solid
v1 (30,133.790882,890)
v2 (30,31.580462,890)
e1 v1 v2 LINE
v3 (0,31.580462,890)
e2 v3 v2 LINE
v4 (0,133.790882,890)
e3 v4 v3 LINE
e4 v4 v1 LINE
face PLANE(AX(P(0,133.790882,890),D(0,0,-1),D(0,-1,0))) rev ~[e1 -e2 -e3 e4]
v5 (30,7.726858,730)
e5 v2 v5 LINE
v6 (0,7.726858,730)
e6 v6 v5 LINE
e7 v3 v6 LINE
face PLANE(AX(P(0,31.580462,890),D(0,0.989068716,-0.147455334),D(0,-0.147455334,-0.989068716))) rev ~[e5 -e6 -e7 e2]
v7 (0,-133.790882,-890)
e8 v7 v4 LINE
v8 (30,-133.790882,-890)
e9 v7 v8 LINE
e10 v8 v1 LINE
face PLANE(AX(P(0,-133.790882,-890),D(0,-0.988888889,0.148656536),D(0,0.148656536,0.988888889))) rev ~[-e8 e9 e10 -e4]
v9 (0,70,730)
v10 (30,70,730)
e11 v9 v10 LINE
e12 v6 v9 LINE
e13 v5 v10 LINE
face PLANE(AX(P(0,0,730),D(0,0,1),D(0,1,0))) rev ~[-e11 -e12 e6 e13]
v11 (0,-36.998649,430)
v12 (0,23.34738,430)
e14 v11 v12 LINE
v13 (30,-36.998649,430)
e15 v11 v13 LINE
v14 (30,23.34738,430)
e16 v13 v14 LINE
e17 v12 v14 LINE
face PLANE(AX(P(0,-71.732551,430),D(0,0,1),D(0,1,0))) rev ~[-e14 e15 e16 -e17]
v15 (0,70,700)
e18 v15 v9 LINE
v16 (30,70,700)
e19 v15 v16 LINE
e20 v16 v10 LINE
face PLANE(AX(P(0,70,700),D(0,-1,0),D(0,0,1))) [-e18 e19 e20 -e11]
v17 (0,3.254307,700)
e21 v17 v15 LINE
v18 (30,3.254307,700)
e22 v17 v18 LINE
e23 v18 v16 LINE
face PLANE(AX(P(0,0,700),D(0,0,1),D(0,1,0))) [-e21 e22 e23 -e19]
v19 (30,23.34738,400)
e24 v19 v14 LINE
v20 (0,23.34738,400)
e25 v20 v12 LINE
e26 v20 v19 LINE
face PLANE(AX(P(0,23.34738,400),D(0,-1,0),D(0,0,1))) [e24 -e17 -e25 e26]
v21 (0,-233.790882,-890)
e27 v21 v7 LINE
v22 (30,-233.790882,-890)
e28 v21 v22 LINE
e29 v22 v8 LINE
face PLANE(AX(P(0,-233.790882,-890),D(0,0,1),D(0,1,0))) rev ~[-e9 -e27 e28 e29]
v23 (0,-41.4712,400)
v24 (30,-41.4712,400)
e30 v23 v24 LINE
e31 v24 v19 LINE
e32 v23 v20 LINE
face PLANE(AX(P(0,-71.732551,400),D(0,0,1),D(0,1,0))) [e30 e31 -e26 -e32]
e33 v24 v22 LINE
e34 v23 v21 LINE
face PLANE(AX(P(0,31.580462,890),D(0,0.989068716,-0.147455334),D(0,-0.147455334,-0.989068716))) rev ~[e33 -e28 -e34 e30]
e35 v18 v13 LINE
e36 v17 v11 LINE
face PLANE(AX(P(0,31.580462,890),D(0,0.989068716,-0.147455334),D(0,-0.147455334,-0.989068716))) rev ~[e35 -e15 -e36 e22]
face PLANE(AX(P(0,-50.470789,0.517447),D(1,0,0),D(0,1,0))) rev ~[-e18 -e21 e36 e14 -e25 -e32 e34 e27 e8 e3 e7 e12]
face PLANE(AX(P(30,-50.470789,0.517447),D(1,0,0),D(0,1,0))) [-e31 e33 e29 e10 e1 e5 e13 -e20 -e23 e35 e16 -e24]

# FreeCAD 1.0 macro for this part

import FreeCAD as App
import Part
import Sketcher

V = App.Vector
Q = App.Units.Quantity


def add_polygon(sketch, points):
    """Adds a closed chain of lines whose ends are joined by coincident constraints."""
    first, n = sketch.GeometryCount, len(points)
    for a, b in zip(points, points[1:] + points[:1]):
        sketch.addGeometry(Part.LineSegment(App.Vector(*a, 0), App.Vector(*b, 0)), False)
    for i in range(n):
        sketch.addConstraint(Sketcher.Constraint("Coincident", first + i, 2, first + (i + 1) % n, 1))

doc = App.newDocument("Part")
body = doc.addObject("PartDesign::Body", "Body")

# Sketch on YZ plane
sketch1 = body.newObject("Sketcher::SketchObject", "Sketch")
sketch1.AttachmentSupport = (doc.getObject("YZ_Plane"), [""])
sketch1.MapMode = "FlatFace"
add_polygon(sketch1, [(134, 890), (32, 890), (-234, -890), (-134, -890)])  # lines 0-3
sketch1.addConstraint([
    Sketcher.Constraint("Horizontal", 0),
    Sketcher.Constraint("Horizontal", 2),
    Sketcher.Constraint("Symmetric", 2, 2, 3, 2, -1, 1),
    Sketcher.Constraint("DistanceX", 2, 1, 2, 2, Q("100 mm")),
    Sketcher.Constraint("Distance", 3, Q("1800 mm")),
    Sketcher.Constraint("DistanceY", -1, 1, 0, 2, Q("890 mm")),
    Sketcher.Constraint("DistanceX", 0, 2, 0, 1, Q("102.21042 mm")),
])
pad1 = body.newObject("PartDesign::Pad", "Pad")
pad1.Profile = sketch1
pad1.Length = 30

# Sketch on YZ plane
sketch2 = body.newObject("Sketcher::SketchObject", "Sketch001")
sketch2.AttachmentSupport = (doc.getObject("YZ_Plane"), [""])
sketch2.MapMode = "FlatFace"
add_polygon(sketch2, [(0, 730), (0, 700), (70, 700), (70, 730)])  # lines 0-3
sketch2.addConstraint([
    Sketcher.Constraint("Vertical", 0),
    Sketcher.Constraint("Horizontal", 1),
    Sketcher.Constraint("Vertical", 2),
    Sketcher.Constraint("Horizontal", 3),
    Sketcher.Constraint("PointOnObject", 0, 2, -2),
    Sketcher.Constraint("DistanceX", 1, 1, 1, 2, Q("70 mm")),
    Sketcher.Constraint("DistanceY", 0, 2, 0, 1, Q("30 mm")),
    Sketcher.Constraint("DistanceY", -1, 1, 0, 2, Q("700 mm")),
])
pocket1 = body.newObject("PartDesign::Pocket", "Pocket")
pocket1.Profile = sketch2
pocket1.Length = 30
pocket1.Reversed = True

# Sketch on YZ plane
sketch3 = body.newObject("Sketcher::SketchObject", "Sketch002")
sketch3.AttachmentSupport = (doc.getObject("YZ_Plane"), [""])
sketch3.MapMode = "FlatFace"
add_polygon(sketch3, [(-72, 430), (-72, 400), (23, 400), (23, 430)])  # lines 0-3
sketch3.addConstraint([
    Sketcher.Constraint("Vertical", 0),
    Sketcher.Constraint("Horizontal", 1),
    Sketcher.Constraint("Vertical", 2),
    Sketcher.Constraint("Horizontal", 3),
    Sketcher.Constraint("DistanceY", 0, 2, 0, 1, Q("30 mm")),
    Sketcher.Constraint("DistanceY", -1, 1, 0, 2, Q("400 mm")),
    Sketcher.Constraint("DistanceX", 1, 1, 1, 2, Q("95.079931 mm")),
    Sketcher.Constraint("DistanceX", 0, 2, -1, 1, Q("71.732551 mm")),
])
pocket2 = body.newObject("PartDesign::Pocket", "Pocket001")
pocket2.Profile = sketch3
pocket2.Length = 30
pocket2.Reversed = True

doc.recompute()
